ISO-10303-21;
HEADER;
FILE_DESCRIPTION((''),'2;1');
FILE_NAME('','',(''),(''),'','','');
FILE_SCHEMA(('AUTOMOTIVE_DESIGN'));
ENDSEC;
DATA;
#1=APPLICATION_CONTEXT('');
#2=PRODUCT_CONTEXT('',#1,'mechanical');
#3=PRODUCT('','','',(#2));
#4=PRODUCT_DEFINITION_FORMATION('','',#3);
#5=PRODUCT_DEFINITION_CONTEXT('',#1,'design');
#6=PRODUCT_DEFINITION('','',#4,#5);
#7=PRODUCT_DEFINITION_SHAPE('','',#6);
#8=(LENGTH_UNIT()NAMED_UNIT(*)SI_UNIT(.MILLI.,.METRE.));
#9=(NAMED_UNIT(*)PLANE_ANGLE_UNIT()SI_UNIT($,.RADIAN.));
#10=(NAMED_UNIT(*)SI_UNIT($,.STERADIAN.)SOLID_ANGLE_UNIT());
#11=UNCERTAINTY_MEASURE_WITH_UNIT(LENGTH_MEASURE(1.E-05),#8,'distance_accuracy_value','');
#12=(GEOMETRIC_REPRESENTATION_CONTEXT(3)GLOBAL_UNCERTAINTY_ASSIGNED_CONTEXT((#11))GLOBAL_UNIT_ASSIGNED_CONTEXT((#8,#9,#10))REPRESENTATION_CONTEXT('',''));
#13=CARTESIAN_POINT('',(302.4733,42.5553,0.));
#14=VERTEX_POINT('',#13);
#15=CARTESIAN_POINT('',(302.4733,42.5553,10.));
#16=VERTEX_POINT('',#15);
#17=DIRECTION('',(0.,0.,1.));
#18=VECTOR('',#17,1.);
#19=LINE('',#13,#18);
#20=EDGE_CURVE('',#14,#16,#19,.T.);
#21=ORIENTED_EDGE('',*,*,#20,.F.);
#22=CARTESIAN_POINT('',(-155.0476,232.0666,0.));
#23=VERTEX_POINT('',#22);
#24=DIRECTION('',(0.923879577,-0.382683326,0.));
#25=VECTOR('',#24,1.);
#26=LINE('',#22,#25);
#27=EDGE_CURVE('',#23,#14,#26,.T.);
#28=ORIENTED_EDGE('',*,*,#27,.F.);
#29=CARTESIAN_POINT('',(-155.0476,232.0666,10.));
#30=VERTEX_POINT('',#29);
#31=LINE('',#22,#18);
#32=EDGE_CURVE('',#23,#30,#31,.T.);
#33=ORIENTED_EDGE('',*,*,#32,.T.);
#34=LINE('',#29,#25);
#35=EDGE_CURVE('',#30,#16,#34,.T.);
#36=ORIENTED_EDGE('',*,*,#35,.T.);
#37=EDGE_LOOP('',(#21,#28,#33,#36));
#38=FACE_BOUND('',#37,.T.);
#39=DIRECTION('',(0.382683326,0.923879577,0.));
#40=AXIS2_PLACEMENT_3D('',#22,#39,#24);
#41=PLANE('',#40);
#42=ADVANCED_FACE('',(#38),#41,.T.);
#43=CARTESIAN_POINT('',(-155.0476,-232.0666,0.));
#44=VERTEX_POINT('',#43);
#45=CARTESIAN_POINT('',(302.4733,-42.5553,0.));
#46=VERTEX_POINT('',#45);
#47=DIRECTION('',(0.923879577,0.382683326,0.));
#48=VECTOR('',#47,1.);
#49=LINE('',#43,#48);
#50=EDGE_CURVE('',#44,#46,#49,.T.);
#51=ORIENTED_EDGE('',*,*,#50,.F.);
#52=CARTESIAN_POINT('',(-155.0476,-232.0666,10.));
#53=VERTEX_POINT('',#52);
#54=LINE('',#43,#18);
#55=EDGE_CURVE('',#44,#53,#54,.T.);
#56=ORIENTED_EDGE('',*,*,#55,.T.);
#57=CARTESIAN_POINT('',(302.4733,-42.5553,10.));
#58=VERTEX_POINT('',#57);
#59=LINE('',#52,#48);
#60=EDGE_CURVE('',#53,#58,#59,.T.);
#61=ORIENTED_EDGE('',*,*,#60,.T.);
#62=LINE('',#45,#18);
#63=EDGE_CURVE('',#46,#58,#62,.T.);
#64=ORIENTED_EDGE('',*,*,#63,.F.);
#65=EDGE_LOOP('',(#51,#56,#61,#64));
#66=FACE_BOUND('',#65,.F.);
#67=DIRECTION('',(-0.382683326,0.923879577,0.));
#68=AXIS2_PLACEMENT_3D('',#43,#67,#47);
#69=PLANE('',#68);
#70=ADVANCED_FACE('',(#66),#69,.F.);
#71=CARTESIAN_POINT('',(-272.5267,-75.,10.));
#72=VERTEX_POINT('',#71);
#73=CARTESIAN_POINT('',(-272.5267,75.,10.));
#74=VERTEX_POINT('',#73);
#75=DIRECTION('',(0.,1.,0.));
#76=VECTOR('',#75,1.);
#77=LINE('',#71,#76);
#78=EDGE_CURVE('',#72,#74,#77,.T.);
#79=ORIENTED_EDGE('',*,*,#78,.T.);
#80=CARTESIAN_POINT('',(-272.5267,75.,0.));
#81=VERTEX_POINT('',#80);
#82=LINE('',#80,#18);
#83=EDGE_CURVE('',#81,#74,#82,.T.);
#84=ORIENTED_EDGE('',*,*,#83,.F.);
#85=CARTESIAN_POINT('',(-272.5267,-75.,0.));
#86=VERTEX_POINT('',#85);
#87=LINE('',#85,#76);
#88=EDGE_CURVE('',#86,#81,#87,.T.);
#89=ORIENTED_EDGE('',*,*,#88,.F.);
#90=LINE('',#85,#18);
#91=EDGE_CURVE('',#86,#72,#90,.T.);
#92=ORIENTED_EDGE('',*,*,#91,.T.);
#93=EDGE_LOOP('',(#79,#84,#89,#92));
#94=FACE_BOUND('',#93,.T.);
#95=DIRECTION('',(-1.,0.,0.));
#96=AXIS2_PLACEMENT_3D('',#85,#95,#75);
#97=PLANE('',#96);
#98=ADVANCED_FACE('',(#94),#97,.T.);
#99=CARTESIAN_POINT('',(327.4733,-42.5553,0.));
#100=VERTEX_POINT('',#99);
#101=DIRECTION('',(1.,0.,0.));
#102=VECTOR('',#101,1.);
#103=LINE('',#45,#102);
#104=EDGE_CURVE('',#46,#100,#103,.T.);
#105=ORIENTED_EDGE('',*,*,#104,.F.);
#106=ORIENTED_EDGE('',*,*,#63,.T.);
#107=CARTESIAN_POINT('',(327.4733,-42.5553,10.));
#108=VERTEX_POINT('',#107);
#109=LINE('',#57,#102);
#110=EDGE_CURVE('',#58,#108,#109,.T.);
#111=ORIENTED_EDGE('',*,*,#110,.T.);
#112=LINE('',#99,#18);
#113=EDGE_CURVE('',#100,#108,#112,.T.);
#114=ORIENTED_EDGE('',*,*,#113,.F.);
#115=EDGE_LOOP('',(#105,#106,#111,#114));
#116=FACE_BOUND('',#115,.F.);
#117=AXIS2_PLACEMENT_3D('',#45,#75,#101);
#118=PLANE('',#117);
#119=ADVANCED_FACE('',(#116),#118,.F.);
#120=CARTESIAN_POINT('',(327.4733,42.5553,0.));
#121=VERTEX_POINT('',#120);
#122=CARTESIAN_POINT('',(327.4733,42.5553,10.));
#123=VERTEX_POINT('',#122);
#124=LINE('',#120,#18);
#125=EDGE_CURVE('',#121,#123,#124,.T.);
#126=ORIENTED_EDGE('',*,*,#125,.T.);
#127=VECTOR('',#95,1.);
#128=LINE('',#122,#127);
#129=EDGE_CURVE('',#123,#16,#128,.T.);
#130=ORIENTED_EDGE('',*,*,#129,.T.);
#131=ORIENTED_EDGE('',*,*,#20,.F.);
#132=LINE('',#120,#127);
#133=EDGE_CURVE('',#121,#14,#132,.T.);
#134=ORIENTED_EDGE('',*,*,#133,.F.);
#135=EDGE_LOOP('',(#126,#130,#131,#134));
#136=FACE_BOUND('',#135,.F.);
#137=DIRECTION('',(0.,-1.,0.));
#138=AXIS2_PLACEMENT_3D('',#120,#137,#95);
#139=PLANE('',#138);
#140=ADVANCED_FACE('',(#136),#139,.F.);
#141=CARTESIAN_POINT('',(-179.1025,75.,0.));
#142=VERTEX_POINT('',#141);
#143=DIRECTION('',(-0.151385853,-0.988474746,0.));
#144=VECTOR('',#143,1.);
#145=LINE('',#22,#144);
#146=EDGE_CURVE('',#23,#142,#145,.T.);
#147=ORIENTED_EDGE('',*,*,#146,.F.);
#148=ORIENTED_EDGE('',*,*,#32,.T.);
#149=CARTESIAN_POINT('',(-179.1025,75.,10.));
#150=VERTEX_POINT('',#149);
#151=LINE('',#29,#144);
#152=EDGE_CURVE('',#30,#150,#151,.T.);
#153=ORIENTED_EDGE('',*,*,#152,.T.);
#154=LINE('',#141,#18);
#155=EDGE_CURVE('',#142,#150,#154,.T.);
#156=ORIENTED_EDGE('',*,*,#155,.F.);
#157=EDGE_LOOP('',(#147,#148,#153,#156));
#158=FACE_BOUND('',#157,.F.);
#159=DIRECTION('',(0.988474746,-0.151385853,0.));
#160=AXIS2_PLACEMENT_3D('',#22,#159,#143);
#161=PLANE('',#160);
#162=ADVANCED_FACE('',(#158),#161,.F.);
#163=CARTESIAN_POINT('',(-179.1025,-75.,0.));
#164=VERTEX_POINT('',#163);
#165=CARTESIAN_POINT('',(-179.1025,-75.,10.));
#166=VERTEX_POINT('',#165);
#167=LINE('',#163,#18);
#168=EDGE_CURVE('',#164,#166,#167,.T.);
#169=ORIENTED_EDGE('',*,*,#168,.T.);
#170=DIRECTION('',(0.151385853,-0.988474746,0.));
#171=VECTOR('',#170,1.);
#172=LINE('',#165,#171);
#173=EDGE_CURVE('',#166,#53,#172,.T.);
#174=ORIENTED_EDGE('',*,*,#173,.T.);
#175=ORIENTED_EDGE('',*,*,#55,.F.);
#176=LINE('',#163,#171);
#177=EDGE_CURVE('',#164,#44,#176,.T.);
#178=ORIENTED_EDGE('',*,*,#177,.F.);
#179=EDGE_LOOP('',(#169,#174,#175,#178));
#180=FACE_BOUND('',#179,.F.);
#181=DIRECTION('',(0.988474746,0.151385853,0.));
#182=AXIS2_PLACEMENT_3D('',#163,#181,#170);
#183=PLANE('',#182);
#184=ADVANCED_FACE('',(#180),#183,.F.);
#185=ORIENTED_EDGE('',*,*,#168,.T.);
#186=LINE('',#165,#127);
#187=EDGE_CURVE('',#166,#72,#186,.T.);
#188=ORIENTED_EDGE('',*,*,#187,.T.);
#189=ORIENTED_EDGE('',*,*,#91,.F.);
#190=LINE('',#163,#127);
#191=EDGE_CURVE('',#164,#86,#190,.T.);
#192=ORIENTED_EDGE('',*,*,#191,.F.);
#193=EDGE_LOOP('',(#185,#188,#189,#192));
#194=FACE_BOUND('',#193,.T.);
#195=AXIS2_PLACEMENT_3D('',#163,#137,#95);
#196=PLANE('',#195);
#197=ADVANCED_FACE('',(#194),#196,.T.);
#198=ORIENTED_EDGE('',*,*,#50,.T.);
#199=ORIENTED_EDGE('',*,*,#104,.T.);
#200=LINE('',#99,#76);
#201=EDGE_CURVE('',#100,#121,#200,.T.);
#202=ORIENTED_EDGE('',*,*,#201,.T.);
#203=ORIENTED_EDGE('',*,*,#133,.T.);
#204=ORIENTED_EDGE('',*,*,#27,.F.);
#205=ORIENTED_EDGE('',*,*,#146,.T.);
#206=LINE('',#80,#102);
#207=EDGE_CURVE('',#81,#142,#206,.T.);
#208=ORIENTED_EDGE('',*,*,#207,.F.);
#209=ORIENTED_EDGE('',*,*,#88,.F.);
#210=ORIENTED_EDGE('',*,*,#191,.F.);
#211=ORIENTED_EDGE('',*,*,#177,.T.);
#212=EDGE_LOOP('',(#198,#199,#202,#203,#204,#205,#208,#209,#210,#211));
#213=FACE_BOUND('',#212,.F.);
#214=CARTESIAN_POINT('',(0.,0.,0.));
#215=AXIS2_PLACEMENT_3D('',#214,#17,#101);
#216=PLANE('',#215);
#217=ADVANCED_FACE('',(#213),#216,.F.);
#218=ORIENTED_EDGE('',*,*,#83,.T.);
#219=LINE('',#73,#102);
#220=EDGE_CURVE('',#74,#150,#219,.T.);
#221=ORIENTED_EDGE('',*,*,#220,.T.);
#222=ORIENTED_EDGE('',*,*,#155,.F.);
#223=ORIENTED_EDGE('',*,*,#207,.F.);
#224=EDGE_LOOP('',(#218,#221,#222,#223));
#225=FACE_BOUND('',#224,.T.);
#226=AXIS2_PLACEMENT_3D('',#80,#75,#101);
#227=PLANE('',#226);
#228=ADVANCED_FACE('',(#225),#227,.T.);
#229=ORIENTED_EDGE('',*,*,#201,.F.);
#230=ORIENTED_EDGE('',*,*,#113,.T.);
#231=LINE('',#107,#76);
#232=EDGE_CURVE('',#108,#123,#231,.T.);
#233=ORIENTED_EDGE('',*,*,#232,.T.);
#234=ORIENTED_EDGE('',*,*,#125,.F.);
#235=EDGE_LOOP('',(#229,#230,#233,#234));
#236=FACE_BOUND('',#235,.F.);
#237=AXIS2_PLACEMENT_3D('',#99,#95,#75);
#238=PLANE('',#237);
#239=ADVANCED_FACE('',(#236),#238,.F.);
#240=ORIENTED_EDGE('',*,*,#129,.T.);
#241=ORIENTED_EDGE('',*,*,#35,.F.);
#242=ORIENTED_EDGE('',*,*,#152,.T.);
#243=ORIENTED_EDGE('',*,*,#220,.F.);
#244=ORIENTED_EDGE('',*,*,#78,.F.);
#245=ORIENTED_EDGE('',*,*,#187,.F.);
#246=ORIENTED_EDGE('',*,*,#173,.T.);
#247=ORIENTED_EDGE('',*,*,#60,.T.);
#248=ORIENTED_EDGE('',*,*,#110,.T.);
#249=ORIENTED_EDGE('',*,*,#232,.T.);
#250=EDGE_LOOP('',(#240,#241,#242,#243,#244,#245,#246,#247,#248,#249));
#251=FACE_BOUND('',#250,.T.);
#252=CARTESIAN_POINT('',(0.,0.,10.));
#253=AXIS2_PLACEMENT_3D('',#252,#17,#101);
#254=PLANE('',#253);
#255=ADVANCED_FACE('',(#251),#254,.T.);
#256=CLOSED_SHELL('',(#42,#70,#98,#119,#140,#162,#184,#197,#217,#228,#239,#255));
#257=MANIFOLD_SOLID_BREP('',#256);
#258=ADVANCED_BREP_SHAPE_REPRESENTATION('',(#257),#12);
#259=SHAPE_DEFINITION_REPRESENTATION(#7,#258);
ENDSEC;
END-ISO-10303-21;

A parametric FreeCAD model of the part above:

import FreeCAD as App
import Part
import Sketcher

V = App.Vector
Q = App.Units.Quantity


def add_polygon(sketch, points):
    """Adds a closed chain of lines whose ends are joined by coincident constraints."""
    first, n = sketch.GeometryCount, len(points)
    for a, b in zip(points, points[1:] + points[:1]):
        sketch.addGeometry(Part.LineSegment(App.Vector(*a, 0), App.Vector(*b, 0)), False)
    for i in range(n):
        sketch.addConstraint(Sketcher.Constraint("Coincident", first + i, 2, first + (i + 1) % n, 1))

doc = App.newDocument("Part")
body = doc.addObject("PartDesign::Body", "Body")

sketch1 = body.newObject("Sketcher::SketchObject", "Sketch")
sketch1.AttachmentSupport = (doc.getObject("XY_Plane"), [""])
sketch1.MapMode = "FlatFace"
add_polygon(sketch1, [(-179.1025, 75), (-272.5267, 75), (-272.5267, -75), (-179.1025, -75), (-155.0476, -232.0666), (302.4733, -42.5553), (327.4733, -42.5553), (327.4733, 42.5553), (302.4733, 42.5553), (-155.0476, 232.0666)])
sketch1.addConstraint([
    Sketcher.Constraint("Horizontal", 0),
    Sketcher.Constraint("Vertical", 1),
    Sketcher.Constraint("Horizontal", 2),
    Sketcher.Constraint("Horizontal", 5),
    Sketcher.Constraint("Vertical", 6),
    Sketcher.Constraint("Horizontal", 7),
    Sketcher.Constraint("Symmetric", 4, 2, 7, 2, -1),
    Sketcher.Constraint("Symmetric", 3, 2, 8, 2, -1),
    Sketcher.Constraint("Symmetric", 2, 2, 9, 2, -1),
    Sketcher.Constraint("DistanceY", 1, 2, 1, 1, 150.0),
    Sketcher.Constraint("DistanceX", 5, 1, 5, 2, 25.0),
    Sketcher.Constraint("Angle", 4, Q("22.5 deg")),
    Sketcher.Constraint("DistanceX", 1, 2, 4, 2, 575.0),
    Sketcher.Constraint("Distance", 3, 158.898),
    Sketcher.Constraint("Distance", 4, 495.217),
    Sketcher.Constraint("DistanceX", 0, 2, 0, 1, 93.4242),
    Sketcher.Constraint("DistanceX", 0, 2, -1, 1, 272.5267),
])
pad1 = body.newObject("PartDesign::Pad", "Pad")
pad1.Profile = sketch1
pad1.Length = 10

doc.recompute()
